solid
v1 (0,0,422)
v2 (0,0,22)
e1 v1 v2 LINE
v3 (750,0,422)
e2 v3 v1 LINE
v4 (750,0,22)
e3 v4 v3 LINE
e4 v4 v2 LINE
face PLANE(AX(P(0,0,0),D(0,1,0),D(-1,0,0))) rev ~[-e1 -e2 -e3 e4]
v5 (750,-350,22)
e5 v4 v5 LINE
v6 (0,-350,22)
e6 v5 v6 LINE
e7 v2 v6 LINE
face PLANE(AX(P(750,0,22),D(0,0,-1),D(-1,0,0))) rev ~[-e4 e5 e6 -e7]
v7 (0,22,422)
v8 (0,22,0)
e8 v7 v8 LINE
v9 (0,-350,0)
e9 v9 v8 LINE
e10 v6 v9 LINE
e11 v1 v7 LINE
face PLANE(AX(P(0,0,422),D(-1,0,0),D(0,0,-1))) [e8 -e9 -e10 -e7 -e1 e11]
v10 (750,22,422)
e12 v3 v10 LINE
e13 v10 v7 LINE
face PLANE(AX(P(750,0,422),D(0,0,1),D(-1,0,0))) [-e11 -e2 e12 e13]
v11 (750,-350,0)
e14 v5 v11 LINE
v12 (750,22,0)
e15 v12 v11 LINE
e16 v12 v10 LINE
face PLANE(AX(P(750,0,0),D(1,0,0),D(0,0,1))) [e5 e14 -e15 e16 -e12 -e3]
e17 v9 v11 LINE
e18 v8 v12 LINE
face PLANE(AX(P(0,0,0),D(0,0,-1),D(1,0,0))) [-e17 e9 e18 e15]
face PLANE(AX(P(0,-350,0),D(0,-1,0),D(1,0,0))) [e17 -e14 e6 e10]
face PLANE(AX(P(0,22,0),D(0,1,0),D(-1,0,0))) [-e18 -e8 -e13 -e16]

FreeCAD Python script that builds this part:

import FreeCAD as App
import Part
import Sketcher

V = App.Vector


def add_polygon(sketch, points):
    """Adds a closed chain of lines whose ends are joined by coincident constraints."""
    first, n = sketch.GeometryCount, len(points)
    for a, b in zip(points, points[1:] + points[:1]):
        sketch.addGeometry(Part.LineSegment(App.Vector(*a, 0), App.Vector(*b, 0)), False)
    for i in range(n):
        sketch.addConstraint(Sketcher.Constraint("Coincident", first + i, 2, first + (i + 1) % n, 1))

doc = App.newDocument("Part")
body = doc.addObject("PartDesign::Body", "Body")

sketch1 = body.newObject("Sketcher::SketchObject", "Sketch")
sketch1.AttachmentSupport = (doc.getObject("XZ_Plane"), [""])
sketch1.MapMode = "FlatFace"
add_polygon(sketch1, [(750, 0), (0, 0), (0, 422), (750, 422)])
sketch1.addConstraint(Sketcher.Constraint("Horizontal", 0))
sketch1.addConstraint(Sketcher.Constraint("Vertical", 1))
sketch1.addConstraint(Sketcher.Constraint("Horizontal", 2))
sketch1.addConstraint(Sketcher.Constraint("Vertical", 3))
sketch1.addConstraint(Sketcher.Constraint("Coincident", 0, 2, -1, 1))
sketch1.addConstraint(Sketcher.Constraint("DistanceX", 0, 2, 0, 1, 750.0))
sketch1.addConstraint(Sketcher.Constraint("DistanceY", 1, 1, 1, 2, 422.0))
pad1 = body.newObject("PartDesign::Pad", "Pad")
pad1.Profile = sketch1
pad1.Length = 22
pad1.Reversed = True

sketch2 = body.newObject("Sketcher::SketchObject", "Sketch001")
sketch2.AttachmentSupport = (doc.getObject("XZ_Plane"), [""])
sketch2.MapMode = "FlatFace"
add_polygon(sketch2, [(750, 0), (750, 22), (0, 22), (0, 0)])
sketch2.addConstraint(Sketcher.Constraint("Vertical", 0))
sketch2.addConstraint(Sketcher.Constraint("Horizontal", 1))
sketch2.addConstraint(Sketcher.Constraint("Vertical", 2))
sketch2.addConstraint(Sketcher.Constraint("Horizontal", 3))
sketch2.addConstraint(Sketcher.Constraint("Coincident", 2, 2, -1, 1))
sketch2.addConstraint(Sketcher.Constraint("DistanceY", 0, 1, 0, 2, 22.0))
sketch2.addConstraint(Sketcher.Constraint("DistanceX", 1, 2, 1, 1, 750.0))
pad2 = body.newObject("PartDesign::Pad", "Pad001")
pad2.Profile = sketch2
pad2.Length = 350

doc.recompute()
